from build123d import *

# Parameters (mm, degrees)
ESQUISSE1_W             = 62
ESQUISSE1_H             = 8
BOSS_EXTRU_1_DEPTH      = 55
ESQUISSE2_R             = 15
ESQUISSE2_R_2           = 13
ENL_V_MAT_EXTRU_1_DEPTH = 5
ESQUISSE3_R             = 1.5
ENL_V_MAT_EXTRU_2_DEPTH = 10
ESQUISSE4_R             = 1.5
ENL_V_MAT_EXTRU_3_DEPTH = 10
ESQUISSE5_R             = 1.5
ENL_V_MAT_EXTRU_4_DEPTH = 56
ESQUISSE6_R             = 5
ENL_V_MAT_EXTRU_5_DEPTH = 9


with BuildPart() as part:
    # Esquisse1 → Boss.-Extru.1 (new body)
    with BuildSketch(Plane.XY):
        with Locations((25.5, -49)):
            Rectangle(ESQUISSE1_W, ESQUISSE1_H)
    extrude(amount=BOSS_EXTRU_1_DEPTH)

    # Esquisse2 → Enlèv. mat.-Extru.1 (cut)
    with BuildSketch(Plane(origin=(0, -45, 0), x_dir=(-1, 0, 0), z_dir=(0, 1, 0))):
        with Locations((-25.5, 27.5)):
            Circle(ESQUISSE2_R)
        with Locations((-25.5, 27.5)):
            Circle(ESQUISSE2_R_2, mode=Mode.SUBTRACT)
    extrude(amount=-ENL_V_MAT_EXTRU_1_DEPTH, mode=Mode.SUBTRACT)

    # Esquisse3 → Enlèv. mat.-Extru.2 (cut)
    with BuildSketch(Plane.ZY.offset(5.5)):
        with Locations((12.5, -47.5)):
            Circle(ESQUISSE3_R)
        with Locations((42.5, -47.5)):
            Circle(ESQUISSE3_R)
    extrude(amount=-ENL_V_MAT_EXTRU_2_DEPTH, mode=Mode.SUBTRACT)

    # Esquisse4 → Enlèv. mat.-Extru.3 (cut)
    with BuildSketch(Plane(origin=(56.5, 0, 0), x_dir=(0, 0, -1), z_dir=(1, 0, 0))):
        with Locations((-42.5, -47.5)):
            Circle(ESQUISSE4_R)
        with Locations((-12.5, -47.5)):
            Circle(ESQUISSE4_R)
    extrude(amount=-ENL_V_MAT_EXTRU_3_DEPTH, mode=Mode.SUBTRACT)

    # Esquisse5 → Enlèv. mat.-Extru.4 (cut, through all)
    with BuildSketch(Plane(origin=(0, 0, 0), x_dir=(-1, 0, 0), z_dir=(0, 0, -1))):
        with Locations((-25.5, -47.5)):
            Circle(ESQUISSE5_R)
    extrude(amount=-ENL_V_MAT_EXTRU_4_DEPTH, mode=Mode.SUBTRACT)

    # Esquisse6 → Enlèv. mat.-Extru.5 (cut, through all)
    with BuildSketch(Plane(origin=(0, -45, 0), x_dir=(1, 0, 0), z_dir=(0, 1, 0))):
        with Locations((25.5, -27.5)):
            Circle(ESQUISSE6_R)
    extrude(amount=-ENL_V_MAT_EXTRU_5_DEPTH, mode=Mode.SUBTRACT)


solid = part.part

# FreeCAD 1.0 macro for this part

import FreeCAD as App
import Part
import Sketcher
from FreeCAD import Vector
Q = App.Units.Quantity

doc = App.newDocument("Part")
body = doc.addObject("PartDesign::Body", "Body")

sketch1 = body.newObject("Sketcher::SketchObject", "Sketch")
sketch1.AttachmentSupport = (doc.getObject("XY_Plane"), [""])
sketch1.MapMode = "FlatFace"
sketch1.addGeometry(Part.LineSegment(Vector(-5.5, -45, 0), Vector(-5.5, -53, 0)), False)
sketch1.addGeometry(Part.LineSegment(Vector(-5.5, -53, 0), Vector(56.5, -53, 0)), False)
sketch1.addGeometry(Part.LineSegment(Vector(56.5, -53, 0), Vector(56.5, -45, 0)), False)
sketch1.addGeometry(Part.LineSegment(Vector(56.5, -45, 0), Vector(-5.5, -45, 0)), False)
sketch1.addConstraint(Sketcher.Constraint("Coincident", 0, 2, 1, 1))
sketch1.addConstraint(Sketcher.Constraint("Coincident", 1, 2, 2, 1))
sketch1.addConstraint(Sketcher.Constraint("Coincident", 2, 2, 3, 1))
sketch1.addConstraint(Sketcher.Constraint("Coincident", 3, 2, 0, 1))
sketch1.addConstraint(Sketcher.Constraint("Vertical", 0))
sketch1.addConstraint(Sketcher.Constraint("Horizontal", 1))
sketch1.addConstraint(Sketcher.Constraint("Vertical", 2))
sketch1.addConstraint(Sketcher.Constraint("Horizontal", 3))
sketch1.addConstraint(Sketcher.Constraint("DistanceX", 1, 1, 1, 2, Q("62 mm")))
sketch1.addConstraint(Sketcher.Constraint("DistanceY", 0, 2, 0, 1, Q("8 mm")))
sketch1.addConstraint(Sketcher.Constraint("DistanceY", 0, 2, -1, 1, Q("53 mm")))
sketch1.addConstraint(Sketcher.Constraint("DistanceX", 0, 2, -1, 1, Q("5.5 mm")))
pad1 = body.newObject("PartDesign::Pad", "Pad")
pad1.Profile = sketch1
pad1.Length = 55

sketch2 = body.newObject("Sketcher::SketchObject", "Sketch001")
sketch2.AttachmentSupport = (doc.getObject("XZ_Plane"), [""])
sketch2.MapMode = "FlatFace"
sketch2.AttachmentOffset = App.Placement(Vector(0, 0, 45), App.Rotation())
sketch2.addGeometry(Part.Circle(Vector(25.5, 27.5, 0), Vector(0, 0, 1), 15), False)
sketch2.addGeometry(Part.Circle(Vector(25.5, 27.5, 0), Vector(0, 0, 1), 13), False)
sketch2.addConstraint(Sketcher.Constraint("Coincident", 1, 3, 0, 3))
sketch2.addConstraint(Sketcher.Constraint("Diameter", 0, Q("30 mm")))
sketch2.addConstraint(Sketcher.Constraint("Diameter", 1, Q("26 mm")))
sketch2.addConstraint(Sketcher.Constraint("DistanceX", -1, 1, 0, 3, Q("25.5 mm")))
sketch2.addConstraint(Sketcher.Constraint("DistanceY", -1, 1, 0, 3, Q("27.5 mm")))
pocket1 = body.newObject("PartDesign::Pocket", "Pocket")
pocket1.Profile = sketch2
pocket1.Length = 5
pocket1.Reversed = True

sketch3 = body.newObject("Sketcher::SketchObject", "Sketch002")
sketch3.AttachmentSupport = (doc.getObject("YZ_Plane"), [""])
sketch3.MapMode = "FlatFace"
sketch3.AttachmentOffset = App.Placement(Vector(0, 0, -5.5), App.Rotation())
sketch3.addGeometry(Part.Circle(Vector(-47.5, 12.5, 0), Vector(0, 0, 1), 1.5), False)
sketch3.addGeometry(Part.Circle(Vector(-47.5, 42.5, 0), Vector(0, 0, 1), 1.5), False)
sketch3.addConstraint(Sketcher.Constraint("Equal", 0, 1))
sketch3.addConstraint(Sketcher.Constraint("Vertical", 0, 3, 1, 3))
sketch3.addConstraint(Sketcher.Constraint("Diameter", 0, Q("3 mm")))
sketch3.addConstraint(Sketcher.Constraint("DistanceY", 0, 3, 1, 3, Q("30 mm")))
sketch3.addConstraint(Sketcher.Constraint("DistanceX", 0, 3, -1, 1, Q("47.5 mm")))
sketch3.addConstraint(Sketcher.Constraint("DistanceY", -1, 1, 0, 3, Q("12.5 mm")))
pocket2 = body.newObject("PartDesign::Pocket", "Pocket001")
pocket2.Profile = sketch3
pocket2.Length = 10
pocket2.Reversed = True

sketch4 = body.newObject("Sketcher::SketchObject", "Sketch003")
sketch4.AttachmentSupport = (doc.getObject("YZ_Plane"), [""])
sketch4.MapMode = "FlatFace"
sketch4.AttachmentOffset = App.Placement(Vector(0, 0, 56.5), App.Rotation())
sketch4.addGeometry(Part.Circle(Vector(-47.5, 42.5, 0), Vector(0, 0, 1), 1.5), False)
sketch4.addGeometry(Part.Circle(Vector(-47.5, 12.5, 0), Vector(0, 0, 1), 1.5), False)
sketch4.addConstraint(Sketcher.Constraint("Equal", 0, 1))
sketch4.addConstraint(Sketcher.Constraint("Vertical", 0, 3, 1, 3))
sketch4.addConstraint(Sketcher.Constraint("Diameter", 0, Q("3 mm")))
sketch4.addConstraint(Sketcher.Constraint("DistanceY", 1, 3, 0, 3, Q("30 mm")))
sketch4.addConstraint(Sketcher.Constraint("DistanceX", 0, 3, -1, 1, Q("47.5 mm")))
sketch4.addConstraint(Sketcher.Constraint("DistanceY", -1, 1, 0, 3, Q("42.5 mm")))
pocket3 = body.newObject("PartDesign::Pocket", "Pocket002")
pocket3.Profile = sketch4
pocket3.Length = 10

sketch5 = body.newObject("Sketcher::SketchObject", "Sketch004")
sketch5.AttachmentSupport = (doc.getObject("XY_Plane"), [""])
sketch5.MapMode = "FlatFace"
sketch5.addGeometry(Part.Circle(Vector(25.5, -47.5, 0), Vector(0, 0, 1), 1.5), False)
sketch5.addConstraint(Sketcher.Constraint("Diameter", 0, Q("3 mm")))
sketch5.addConstraint(Sketcher.Constraint("DistanceX", -1, 1, 0, 3, Q("25.5 mm")))
sketch5.addConstraint(Sketcher.Constraint("DistanceY", 0, 3, -1, 1, Q("47.5 mm")))
pocket4 = body.newObject("PartDesign::Pocket", "Pocket003")
pocket4.Profile = sketch5
pocket4.Type = "ThroughAll"
pocket4.Reversed = True

sketch6 = body.newObject("Sketcher::SketchObject", "Sketch005")
sketch6.AttachmentSupport = (doc.getObject("XZ_Plane"), [""])
sketch6.MapMode = "FlatFace"
sketch6.AttachmentOffset = App.Placement(Vector(0, 0, 45), App.Rotation())
sketch6.addGeometry(Part.Circle(Vector(25.5, 27.5, 0), Vector(0, 0, 1), 5), False)
sketch6.addConstraint(Sketcher.Constraint("Diameter", 0, Q("10 mm")))
sketch6.addConstraint(Sketcher.Constraint("DistanceX", -1, 1, 0, 3, Q("25.5 mm")))
sketch6.addConstraint(Sketcher.Constraint("DistanceY", -1, 1, 0, 3, Q("27.5 mm")))
pocket5 = body.newObject("PartDesign::Pocket", "Pocket004")
pocket5.Profile = sketch6
pocket5.Type = "ThroughAll"
pocket5.Reversed = True

doc.recompute()
